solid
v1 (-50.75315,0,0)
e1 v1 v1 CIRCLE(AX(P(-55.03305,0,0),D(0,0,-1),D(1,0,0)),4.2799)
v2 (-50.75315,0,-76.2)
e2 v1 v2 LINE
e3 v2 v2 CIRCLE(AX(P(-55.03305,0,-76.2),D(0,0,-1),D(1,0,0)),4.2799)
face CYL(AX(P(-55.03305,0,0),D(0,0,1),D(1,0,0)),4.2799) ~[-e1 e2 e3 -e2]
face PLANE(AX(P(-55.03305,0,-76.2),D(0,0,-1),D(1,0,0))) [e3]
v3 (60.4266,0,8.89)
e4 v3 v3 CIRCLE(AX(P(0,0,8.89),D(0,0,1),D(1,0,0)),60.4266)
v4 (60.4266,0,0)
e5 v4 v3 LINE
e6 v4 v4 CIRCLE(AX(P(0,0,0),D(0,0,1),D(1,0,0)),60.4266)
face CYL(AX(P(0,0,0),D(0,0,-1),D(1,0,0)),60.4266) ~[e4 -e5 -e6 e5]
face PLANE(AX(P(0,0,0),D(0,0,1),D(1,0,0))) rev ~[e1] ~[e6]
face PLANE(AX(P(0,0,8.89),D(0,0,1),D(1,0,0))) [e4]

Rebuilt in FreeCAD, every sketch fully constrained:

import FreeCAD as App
import Part
import Sketcher
from FreeCAD import Vector
Q = App.Units.Quantity

doc = App.newDocument("Part")
body = doc.addObject("PartDesign::Body", "Body")

sketch1 = body.newObject("Sketcher::SketchObject", "Sketch")
sketch1.AttachmentSupport = (doc.getObject("XY_Plane"), [""])
sketch1.MapMode = "FlatFace"
sketch1.addGeometry(Part.Circle(Vector(0, 0, 0), Vector(0, 0, 1), 60.4266), False)
sketch1.addConstraint(Sketcher.Constraint("Coincident", 0, 3, -1, 1))
sketch1.addConstraint(Sketcher.Constraint("Diameter", 0, Q("4.758 in")))
pad1 = body.newObject("PartDesign::Pad", "Pad")
pad1.Profile = sketch1
pad1.Length = Q("0.35 in")

sketch2 = body.newObject("Sketcher::SketchObject", "Sketch001")
sketch2.AttachmentSupport = (doc.getObject("XY_Plane"), [""])
sketch2.MapMode = "FlatFace"
sketch2.addGeometry(Part.Circle(Vector(-55.03305, 0, 0), Vector(0, 0, 1), 4.2799), False)
sketch2.addConstraint(Sketcher.Constraint("PointOnObject", 0, 3, -1))
sketch2.addConstraint(Sketcher.Constraint("Diameter", 0, Q("0.337 in")))
sketch2.addConstraint(Sketcher.Constraint("DistanceX", 0, 3, -1, 1, Q("55.03305 mm")))
pad2 = body.newObject("PartDesign::Pad", "Pad001")
pad2.Profile = sketch2
pad2.Length = Q("3 in")
pad2.Reversed = True

doc.recompute()
